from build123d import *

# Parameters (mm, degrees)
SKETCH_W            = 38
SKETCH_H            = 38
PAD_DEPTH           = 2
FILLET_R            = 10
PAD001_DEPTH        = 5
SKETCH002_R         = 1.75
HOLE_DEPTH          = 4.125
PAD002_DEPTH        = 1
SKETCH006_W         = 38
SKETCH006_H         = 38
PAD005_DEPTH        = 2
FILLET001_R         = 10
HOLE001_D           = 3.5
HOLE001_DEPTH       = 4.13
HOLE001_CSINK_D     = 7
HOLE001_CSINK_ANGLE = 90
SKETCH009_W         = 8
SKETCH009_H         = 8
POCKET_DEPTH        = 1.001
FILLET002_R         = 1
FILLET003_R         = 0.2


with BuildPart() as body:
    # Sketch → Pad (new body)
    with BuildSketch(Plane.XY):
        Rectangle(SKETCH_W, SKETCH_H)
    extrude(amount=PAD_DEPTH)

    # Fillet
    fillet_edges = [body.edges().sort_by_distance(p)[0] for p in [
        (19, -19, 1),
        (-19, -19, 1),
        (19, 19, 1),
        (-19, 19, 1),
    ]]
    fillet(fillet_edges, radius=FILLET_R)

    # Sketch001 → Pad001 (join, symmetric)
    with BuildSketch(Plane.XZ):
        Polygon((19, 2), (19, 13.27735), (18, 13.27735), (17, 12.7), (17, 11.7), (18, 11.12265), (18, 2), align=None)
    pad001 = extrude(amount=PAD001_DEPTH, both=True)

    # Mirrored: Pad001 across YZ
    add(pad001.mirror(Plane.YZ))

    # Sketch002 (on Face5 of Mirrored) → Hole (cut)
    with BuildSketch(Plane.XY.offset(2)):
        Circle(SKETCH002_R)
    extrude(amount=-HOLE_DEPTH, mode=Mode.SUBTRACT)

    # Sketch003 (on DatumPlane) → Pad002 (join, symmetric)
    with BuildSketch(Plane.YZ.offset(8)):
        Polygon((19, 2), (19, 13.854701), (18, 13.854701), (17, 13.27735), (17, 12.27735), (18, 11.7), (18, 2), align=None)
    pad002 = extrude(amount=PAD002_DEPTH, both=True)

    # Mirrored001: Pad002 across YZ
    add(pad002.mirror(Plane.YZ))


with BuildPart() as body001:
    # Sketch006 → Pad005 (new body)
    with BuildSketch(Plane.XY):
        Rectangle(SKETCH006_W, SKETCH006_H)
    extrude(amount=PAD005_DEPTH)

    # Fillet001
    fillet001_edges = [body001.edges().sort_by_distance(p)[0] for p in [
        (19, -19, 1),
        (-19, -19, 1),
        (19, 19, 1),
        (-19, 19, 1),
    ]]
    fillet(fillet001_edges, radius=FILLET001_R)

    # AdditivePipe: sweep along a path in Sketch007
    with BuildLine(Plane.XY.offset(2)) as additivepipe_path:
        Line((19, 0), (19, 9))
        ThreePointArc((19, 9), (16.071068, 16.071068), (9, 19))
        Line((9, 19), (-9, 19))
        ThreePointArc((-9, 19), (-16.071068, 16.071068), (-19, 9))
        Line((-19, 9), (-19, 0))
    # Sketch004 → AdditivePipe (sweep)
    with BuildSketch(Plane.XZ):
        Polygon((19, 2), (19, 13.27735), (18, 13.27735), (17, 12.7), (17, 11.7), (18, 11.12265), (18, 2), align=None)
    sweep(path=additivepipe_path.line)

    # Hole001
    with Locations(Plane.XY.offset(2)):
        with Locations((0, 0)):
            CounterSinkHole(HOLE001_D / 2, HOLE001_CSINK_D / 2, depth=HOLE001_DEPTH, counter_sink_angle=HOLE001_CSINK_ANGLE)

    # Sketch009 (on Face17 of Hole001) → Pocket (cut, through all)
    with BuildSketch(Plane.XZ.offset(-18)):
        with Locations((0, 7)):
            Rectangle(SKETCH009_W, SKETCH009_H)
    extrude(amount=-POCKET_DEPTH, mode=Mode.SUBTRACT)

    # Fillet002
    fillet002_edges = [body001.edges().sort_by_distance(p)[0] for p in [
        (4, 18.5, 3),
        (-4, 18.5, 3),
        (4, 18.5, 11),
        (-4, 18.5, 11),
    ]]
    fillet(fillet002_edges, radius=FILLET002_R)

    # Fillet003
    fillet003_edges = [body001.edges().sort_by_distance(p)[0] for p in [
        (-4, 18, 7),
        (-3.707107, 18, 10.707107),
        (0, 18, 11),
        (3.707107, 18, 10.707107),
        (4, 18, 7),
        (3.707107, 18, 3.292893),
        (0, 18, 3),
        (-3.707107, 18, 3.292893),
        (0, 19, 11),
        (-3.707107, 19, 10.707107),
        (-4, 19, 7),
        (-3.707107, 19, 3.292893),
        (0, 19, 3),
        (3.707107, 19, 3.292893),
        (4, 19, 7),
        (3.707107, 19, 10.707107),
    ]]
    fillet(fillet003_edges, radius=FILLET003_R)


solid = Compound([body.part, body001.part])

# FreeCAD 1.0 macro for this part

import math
import FreeCAD as App
import Part
import Sketcher
Q = App.Units.Quantity


def edges_at(feature, points):
    """Names of the edges that pass closest to the given points."""
    edges = feature.Shape.Edges
    near = lambda p: min(range(len(edges)), key=lambda i: edges[i].distToShape(Part.Vertex(*p))[0])
    return sorted({f"Edge{near(p) + 1}" for p in points})

doc = App.newDocument("Part")
body = doc.addObject("PartDesign::Body", "Body")

# Sketch on XY plane
sketch1 = body.newObject("Sketcher::SketchObject", "Sketch")
sketch1.AttachmentSupport = (doc.getObject("XY_Plane"), [""])
sketch1.MapMode = "FlatFace"
sketch1.addGeometry(Part.LineSegment(App.Vector(-19, 19, 0), App.Vector(-19, -19, 0)), False)
sketch1.addGeometry(Part.LineSegment(App.Vector(-19, -19, 0), App.Vector(19, -19, 0)), False)
sketch1.addGeometry(Part.LineSegment(App.Vector(19, -19, 0), App.Vector(19, 19, 0)), False)
sketch1.addGeometry(Part.LineSegment(App.Vector(19, 19, 0), App.Vector(-19, 19, 0)), False)
sketch1.addConstraint(Sketcher.Constraint("Coincident", 0, 2, 1, 1))
sketch1.addConstraint(Sketcher.Constraint("Coincident", 1, 2, 2, 1))
sketch1.addConstraint(Sketcher.Constraint("Coincident", 2, 2, 3, 1))
sketch1.addConstraint(Sketcher.Constraint("Coincident", 3, 2, 0, 1))
sketch1.addConstraint(Sketcher.Constraint("Vertical", 0))
sketch1.addConstraint(Sketcher.Constraint("Horizontal", 1))
sketch1.addConstraint(Sketcher.Constraint("Vertical", 2))
sketch1.addConstraint(Sketcher.Constraint("Horizontal", 3))
sketch1.addConstraint(Sketcher.Constraint("Symmetric", 0, 2, 2, 2, -1, 1))
sketch1.addConstraint(Sketcher.Constraint("Equal", 3, 0))
sketch1.addConstraint(Sketcher.Constraint("DistanceX", 1, 1, 1, 2, Q("38 mm")))
pad1 = body.newObject("PartDesign::Pad", "Pad")
pad1.Profile = sketch1
pad1.Length = 2
doc.recompute()

fillet = body.newObject("PartDesign::Fillet", "Fillet")
fillet.Base = (pad1, edges_at(pad1, [
    (19, -19, 1),
    (-19, -19, 1),
    (19, 19, 1),
    (-19, 19, 1),
]))
fillet.Radius = 10

# Sketch on XZ plane
sketch2 = body.newObject("Sketcher::SketchObject", "Sketch001")
sketch2.AttachmentSupport = (doc.getObject("XZ_Plane"), [""])
sketch2.MapMode = "FlatFace"
sketch2.addGeometry(Part.LineSegment(App.Vector(19, 2, 0), App.Vector(19, 13.27735, 0)), False)
sketch2.addGeometry(Part.LineSegment(App.Vector(19, 13.27735, 0), App.Vector(18, 13.27735, 0)), False)
sketch2.addGeometry(Part.LineSegment(App.Vector(18, 13.27735, 0), App.Vector(17, 12.7, 0)), False)
sketch2.addGeometry(Part.LineSegment(App.Vector(17, 12.7, 0), App.Vector(17, 11.7, 0)), False)
sketch2.addGeometry(Part.LineSegment(App.Vector(17, 11.7, 0), App.Vector(18, 11.12265, 0)), False)
sketch2.addGeometry(Part.LineSegment(App.Vector(18, 11.12265, 0), App.Vector(18, 2, 0)), False)
sketch2.addGeometry(Part.LineSegment(App.Vector(18, 2, 0), App.Vector(19, 2, 0)), False)
sketch2.addConstraint(Sketcher.Constraint("Coincident", 0, 2, 1, 1))
sketch2.addConstraint(Sketcher.Constraint("Coincident", 1, 2, 2, 1))
sketch2.addConstraint(Sketcher.Constraint("Coincident", 2, 2, 3, 1))
sketch2.addConstraint(Sketcher.Constraint("Coincident", 3, 2, 4, 1))
sketch2.addConstraint(Sketcher.Constraint("Coincident", 4, 2, 5, 1))
sketch2.addConstraint(Sketcher.Constraint("Coincident", 5, 2, 6, 1))
sketch2.addConstraint(Sketcher.Constraint("Coincident", 6, 2, 0, 1))
sketch2.addConstraint(Sketcher.Constraint("Vertical", 0))
sketch2.addConstraint(Sketcher.Constraint("Horizontal", 1))
sketch2.addConstraint(Sketcher.Constraint("Vertical", 3))
sketch2.addConstraint(Sketcher.Constraint("Vertical", 5))
sketch2.addConstraint(Sketcher.Constraint("Horizontal", 6))
sketch2.addConstraint(Sketcher.Constraint("Vertical", 1, 2, 4, 2))
sketch2.addConstraint(Sketcher.Constraint("Equal", 6, 3))
sketch2.addConstraint(Sketcher.Constraint("Equal", 2, 4))
sketch2.addConstraint(Sketcher.Constraint("DistanceX", 1, 2, 1, 1, Q("1 mm")))
sketch2.addConstraint(Sketcher.Constraint("Angle", 2, Q("-150.000012 deg")))
sketch2.addConstraint(Sketcher.Constraint("DistanceX", -1, 1, 0, 2, Q("19 mm")))
sketch2.addConstraint(Sketcher.Constraint("DistanceX", -1, 1, 2, 2, Q("17 mm")))
sketch2.addConstraint(Sketcher.Constraint("DistanceY", -1, 1, 5, 2, Q("2 mm")))
sketch2.addConstraint(Sketcher.Constraint("DistanceY", -1, 1, 2, 2, Q("12.7 mm")))
pad2 = body.newObject("PartDesign::Pad", "Pad001")
pad2.Profile = sketch2
pad2.Length = 10
pad2.Midplane = True
doc.recompute()

mirrored = body.newObject("PartDesign::Mirrored", "Mirrored")
mirrored.Originals = [pad2]
mirrored.MirrorPlane = (doc.getObject("YZ_Plane"), [""])
body.Tip = mirrored

# Sketch on XY plane
sketch3 = body.newObject("Sketcher::SketchObject", "Sketch002")
sketch3.AttachmentSupport = (doc.getObject("XY_Plane"), [""])
sketch3.MapMode = "FlatFace"
sketch3.AttachmentOffset = App.Placement(App.Vector(0, 0, 2), App.Rotation())
sketch3.addGeometry(Part.Circle(App.Vector(0, 0, 0), App.Vector(0, 0, 1), 1.75), False)
sketch3.addConstraint(Sketcher.Constraint("Coincident", 0, 3, -1, 1))
sketch3.addConstraint(Sketcher.Constraint("Diameter", 0, Q("3.5 mm")))
pocket1 = body.newObject("PartDesign::Pocket", "Pocket")
pocket1.Profile = sketch3
pocket1.Length = 4.125

# Sketch on YZ plane
sketch4 = body.newObject("Sketcher::SketchObject", "Sketch003")
sketch4.AttachmentSupport = (doc.getObject("YZ_Plane"), [""])
sketch4.MapMode = "FlatFace"
sketch4.AttachmentOffset = App.Placement(App.Vector(0, 0, 8), App.Rotation())
sketch4.addGeometry(Part.LineSegment(App.Vector(19, 2, 0), App.Vector(19, 13.854701, 0)), False)
sketch4.addGeometry(Part.LineSegment(App.Vector(19, 13.854701, 0), App.Vector(18, 13.854701, 0)), False)
sketch4.addGeometry(Part.LineSegment(App.Vector(18, 13.854701, 0), App.Vector(17, 13.27735, 0)), False)
sketch4.addGeometry(Part.LineSegment(App.Vector(17, 13.27735, 0), App.Vector(17, 12.27735, 0)), False)
sketch4.addGeometry(Part.LineSegment(App.Vector(17, 12.27735, 0), App.Vector(18, 11.7, 0)), False)
sketch4.addGeometry(Part.LineSegment(App.Vector(18, 11.7, 0), App.Vector(18, 2, 0)), False)
sketch4.addGeometry(Part.LineSegment(App.Vector(18, 2, 0), App.Vector(19, 2, 0)), False)
sketch4.addConstraint(Sketcher.Constraint("Coincident", 0, 2, 1, 1))
sketch4.addConstraint(Sketcher.Constraint("Coincident", 1, 2, 2, 1))
sketch4.addConstraint(Sketcher.Constraint("Coincident", 2, 2, 3, 1))
sketch4.addConstraint(Sketcher.Constraint("Coincident", 3, 2, 4, 1))
sketch4.addConstraint(Sketcher.Constraint("Coincident", 4, 2, 5, 1))
sketch4.addConstraint(Sketcher.Constraint("Coincident", 5, 2, 6, 1))
sketch4.addConstraint(Sketcher.Constraint("Coincident", 6, 2, 0, 1))
sketch4.addConstraint(Sketcher.Constraint("Vertical", 0))
sketch4.addConstraint(Sketcher.Constraint("Horizontal", 1))
sketch4.addConstraint(Sketcher.Constraint("Vertical", 3))
sketch4.addConstraint(Sketcher.Constraint("Vertical", 5))
sketch4.addConstraint(Sketcher.Constraint("Horizontal", 6))
sketch4.addConstraint(Sketcher.Constraint("Vertical", 1, 2, 4, 2))
sketch4.addConstraint(Sketcher.Constraint("Equal", 6, 3))
sketch4.addConstraint(Sketcher.Constraint("Equal", 2, 4))
sketch4.addConstraint(Sketcher.Constraint("DistanceX", 1, 2, 1, 1, Q("1 mm")))
sketch4.addConstraint(Sketcher.Constraint("Angle", 4, Q("-29.999988 deg")))
sketch4.addConstraint(Sketcher.Constraint("DistanceY", 5, 2, 5, 1, Q("9.7 mm")))
sketch4.addConstraint(Sketcher.Constraint("DistanceX", -1, 1, 0, 2, Q("19 mm")))
sketch4.addConstraint(Sketcher.Constraint("DistanceX", -1, 1, 2, 2, Q("17 mm")))
sketch4.addConstraint(Sketcher.Constraint("DistanceY", -1, 1, 5, 2, Q("2 mm")))
pad3 = body.newObject("PartDesign::Pad", "Pad002")
pad3.Profile = sketch4
pad3.Length = 2
pad3.Midplane = True
doc.recompute()

mirrored2 = body.newObject("PartDesign::Mirrored", "Mirrored001")
mirrored2.Originals = [pad3]
mirrored2.MirrorPlane = (doc.getObject("YZ_Plane"), [""])
body.Tip = mirrored2
body2 = doc.addObject("PartDesign::Body", "Body001")

# Sketch on XY plane
sketch5 = body2.newObject("Sketcher::SketchObject", "Sketch004")
sketch5.AttachmentSupport = (doc.getObject("XY_Plane001"), [""])
sketch5.MapMode = "FlatFace"
sketch5.addGeometry(Part.LineSegment(App.Vector(-19, 19, 0), App.Vector(-19, -19, 0)), False)
sketch5.addGeometry(Part.LineSegment(App.Vector(-19, -19, 0), App.Vector(19, -19, 0)), False)
sketch5.addGeometry(Part.LineSegment(App.Vector(19, -19, 0), App.Vector(19, 19, 0)), False)
sketch5.addGeometry(Part.LineSegment(App.Vector(19, 19, 0), App.Vector(-19, 19, 0)), False)
sketch5.addConstraint(Sketcher.Constraint("Coincident", 0, 2, 1, 1))
sketch5.addConstraint(Sketcher.Constraint("Coincident", 1, 2, 2, 1))
sketch5.addConstraint(Sketcher.Constraint("Coincident", 2, 2, 3, 1))
sketch5.addConstraint(Sketcher.Constraint("Coincident", 3, 2, 0, 1))
sketch5.addConstraint(Sketcher.Constraint("Vertical", 0))
sketch5.addConstraint(Sketcher.Constraint("Horizontal", 1))
sketch5.addConstraint(Sketcher.Constraint("Vertical", 2))
sketch5.addConstraint(Sketcher.Constraint("Horizontal", 3))
sketch5.addConstraint(Sketcher.Constraint("Symmetric", 0, 2, 2, 2, -1, 1))
sketch5.addConstraint(Sketcher.Constraint("Equal", 3, 0))
sketch5.addConstraint(Sketcher.Constraint("DistanceX", 1, 1, 1, 2, Q("38 mm")))
pad4 = body2.newObject("PartDesign::Pad", "Pad003")
pad4.Profile = sketch5
pad4.Length = 2
doc.recompute()

fillet2 = body2.newObject("PartDesign::Fillet", "Fillet001")
fillet2.Base = (pad4, edges_at(pad4, [
    (19, -19, 1),
    (-19, -19, 1),
    (19, 19, 1),
    (-19, 19, 1),
]))
fillet2.Radius = 10

# Sketch on XZ plane
sketch6 = body2.newObject("Sketcher::SketchObject", "Sketch005")
sketch6.AttachmentSupport = (doc.getObject("XZ_Plane001"), [""])
sketch6.MapMode = "FlatFace"
sketch6.addGeometry(Part.LineSegment(App.Vector(19, 2, 0), App.Vector(19, 13.27735, 0)), False)
sketch6.addGeometry(Part.LineSegment(App.Vector(19, 13.27735, 0), App.Vector(18, 13.27735, 0)), False)
sketch6.addGeometry(Part.LineSegment(App.Vector(18, 13.27735, 0), App.Vector(17, 12.7, 0)), False)
sketch6.addGeometry(Part.LineSegment(App.Vector(17, 12.7, 0), App.Vector(17, 11.7, 0)), False)
sketch6.addGeometry(Part.LineSegment(App.Vector(17, 11.7, 0), App.Vector(18, 11.12265, 0)), False)
sketch6.addGeometry(Part.LineSegment(App.Vector(18, 11.12265, 0), App.Vector(18, 2, 0)), False)
sketch6.addGeometry(Part.LineSegment(App.Vector(18, 2, 0), App.Vector(19, 2, 0)), False)
sketch6.addConstraint(Sketcher.Constraint("Coincident", 0, 2, 1, 1))
sketch6.addConstraint(Sketcher.Constraint("Coincident", 1, 2, 2, 1))
sketch6.addConstraint(Sketcher.Constraint("Coincident", 2, 2, 3, 1))
sketch6.addConstraint(Sketcher.Constraint("Coincident", 3, 2, 4, 1))
sketch6.addConstraint(Sketcher.Constraint("Coincident", 4, 2, 5, 1))
sketch6.addConstraint(Sketcher.Constraint("Coincident", 5, 2, 6, 1))
sketch6.addConstraint(Sketcher.Constraint("Coincident", 6, 2, 0, 1))
sketch6.addConstraint(Sketcher.Constraint("Vertical", 0))
sketch6.addConstraint(Sketcher.Constraint("Horizontal", 1))
sketch6.addConstraint(Sketcher.Constraint("Vertical", 3))
sketch6.addConstraint(Sketcher.Constraint("Vertical", 5))
sketch6.addConstraint(Sketcher.Constraint("Horizontal", 6))
sketch6.addConstraint(Sketcher.Constraint("Vertical", 1, 2, 4, 2))
sketch6.addConstraint(Sketcher.Constraint("Equal", 6, 3))
sketch6.addConstraint(Sketcher.Constraint("Equal", 2, 4))
sketch6.addConstraint(Sketcher.Constraint("DistanceX", 1, 2, 1, 1, Q("1 mm")))
sketch6.addConstraint(Sketcher.Constraint("Angle", 2, Q("-150.000012 deg")))
sketch6.addConstraint(Sketcher.Constraint("DistanceX", -1, 1, 0, 2, Q("19 mm")))
sketch6.addConstraint(Sketcher.Constraint("DistanceX", -1, 1, 2, 2, Q("17 mm")))
sketch6.addConstraint(Sketcher.Constraint("DistanceY", -1, 1, 5, 2, Q("2 mm")))
sketch6.addConstraint(Sketcher.Constraint("DistanceY", -1, 1, 2, 2, Q("12.7 mm")))

# Sketch on XY plane
sketch7 = body2.newObject("Sketcher::SketchObject", "Sketch006")
sketch7.AttachmentSupport = (doc.getObject("XY_Plane001"), [""])
sketch7.MapMode = "FlatFace"
sketch7.AttachmentOffset = App.Placement(App.Vector(0, 0, 2), App.Rotation())
sketch7.addGeometry(Part.LineSegment(App.Vector(19, 0, 0), App.Vector(19, 9, 0)), False)
sketch7.addGeometry(Part.ArcOfCircle(Part.Circle(App.Vector(9.000001, 9.000001, 0), App.Vector(0, 0, 1), 9.999999), math.radians(-0.000004), math.radians(90.000004)), False)
sketch7.addGeometry(Part.LineSegment(App.Vector(9, 19, 0), App.Vector(-9, 19, 0)), False)
sketch7.addGeometry(Part.ArcOfCircle(Part.Circle(App.Vector(-9.000001, 9.000001, 0), App.Vector(0, 0, 1), 9.999999), math.radians(89.999996), math.radians(180.000004)), False)
sketch7.addGeometry(Part.LineSegment(App.Vector(-19, 9, 0), App.Vector(-19, 0, 0)), False)
sketch7.addConstraint(Sketcher.Constraint("Tangent", 0, 2, 1, 1))
sketch7.addConstraint(Sketcher.Constraint("Tangent", 1, 2, 2, 1))
sketch7.addConstraint(Sketcher.Constraint("Tangent", 2, 2, 3, 1))
sketch7.addConstraint(Sketcher.Constraint("Tangent", 3, 2, 4, 1))
sketch7.addConstraint(Sketcher.Constraint("Vertical", 0))
sketch7.addConstraint(Sketcher.Constraint("Horizontal", 2))
sketch7.addConstraint(Sketcher.Constraint("Vertical", 4))
sketch7.addConstraint(Sketcher.Constraint("Equal", 1, 3))
sketch7.addConstraint(Sketcher.Constraint("Symmetric", 0, 1, 4, 2, -1, 1))
sketch7.addConstraint(Sketcher.Constraint("PointOnObject", 0, 1, -1))
sketch7.addConstraint(Sketcher.Constraint("Radius", 1, Q("9.999999 mm")))
sketch7.addConstraint(Sketcher.Constraint("DistanceX", 2, 2, 2, 1, Q("18 mm")))
sketch7.addConstraint(Sketcher.Constraint("DistanceY", 0, 1, 0, 2, Q("9 mm")))
doc.recompute()

additivepipe = body2.newObject("PartDesign::AdditivePipe", "AdditivePipe")
additivepipe.Profile = sketch6
additivepipe.Spine = (sketch7, ["Edge1", "Edge2", "Edge3", "Edge4", "Edge5"])

# Sketch on XY plane
sketch8 = body2.newObject("Sketcher::SketchObject", "Sketch007")
sketch8.AttachmentSupport = (doc.getObject("XY_Plane001"), [""])
sketch8.MapMode = "FlatFace"
sketch8.AttachmentOffset = App.Placement(App.Vector(0, 0, 2), App.Rotation())
sketch8.addGeometry(Part.Circle(App.Vector(0, 0, 0), App.Vector(0, 0, 1), 1.75), False)
sketch8.addConstraint(Sketcher.Constraint("Coincident", 0, 3, -1, 1))
sketch8.addConstraint(Sketcher.Constraint("Diameter", 0, Q("3.5 mm")))
doc.recompute()
hole = body2.newObject("PartDesign::Hole", "Hole")
hole.Profile = sketch8
hole.ThreadType = "None"
hole.Diameter = 3.5
hole.DepthType = "Dimension"
hole.Depth = 4.13
hole.DrillPoint = "Flat"
hole.HoleCutType = "Countersink"
hole.HoleCutDiameter = 7
hole.HoleCutCountersinkAngle = 90

# Sketch on XZ plane
sketch9 = body2.newObject("Sketcher::SketchObject", "Sketch008")
sketch9.AttachmentSupport = (doc.getObject("XZ_Plane001"), [""])
sketch9.MapMode = "FlatFace"
sketch9.AttachmentOffset = App.Placement(App.Vector(0, 0, -18), App.Rotation())
sketch9.addGeometry(Part.LineSegment(App.Vector(-4, 11, 0), App.Vector(-4, 3, 0)), False)
sketch9.addGeometry(Part.LineSegment(App.Vector(-4, 3, 0), App.Vector(4, 3, 0)), False)
sketch9.addGeometry(Part.LineSegment(App.Vector(4, 3, 0), App.Vector(4, 11, 0)), False)
sketch9.addGeometry(Part.LineSegment(App.Vector(4, 11, 0), App.Vector(-4, 11, 0)), False)
sketch9.addConstraint(Sketcher.Constraint("Coincident", 0, 2, 1, 1))
sketch9.addConstraint(Sketcher.Constraint("Coincident", 1, 2, 2, 1))
sketch9.addConstraint(Sketcher.Constraint("Coincident", 2, 2, 3, 1))
sketch9.addConstraint(Sketcher.Constraint("Coincident", 3, 2, 0, 1))
sketch9.addConstraint(Sketcher.Constraint("Vertical", 0))
sketch9.addConstraint(Sketcher.Constraint("Horizontal", 1))
sketch9.addConstraint(Sketcher.Constraint("Vertical", 2))
sketch9.addConstraint(Sketcher.Constraint("Horizontal", 3))
sketch9.addConstraint(Sketcher.Constraint("Equal", 3, 0))
sketch9.addConstraint(Sketcher.Constraint("DistanceX", 1, 1, 1, 2, Q("8 mm")))
sketch9.addConstraint(Sketcher.Constraint("DistanceX", 0, 2, -1, 1, Q("4 mm")))
sketch9.addConstraint(Sketcher.Constraint("DistanceY", -1, 1, 0, 2, Q("3 mm")))
pocket2 = body2.newObject("PartDesign::Pocket", "Pocket001")
pocket2.Profile = sketch9
pocket2.Type = "ThroughAll"
doc.recompute()

fillet3 = body2.newObject("PartDesign::Fillet", "Fillet002")
fillet3.Base = (pocket2, edges_at(pocket2, [
    (4, 18.5, 3),
    (-4, 18.5, 3),
    (4, 18.5, 11),
    (-4, 18.5, 11),
]))
fillet3.Radius = 1
doc.recompute()

fillet4 = body2.newObject("PartDesign::Fillet", "Fillet003")
fillet4.Base = (fillet3, edges_at(fillet3, [
    (-4, 18, 7),
    (-3.707, 18, 10.707),
    (0, 18, 11),
    (3.707, 18, 10.707),
    (4, 18, 7),
    (3.707, 18, 3.293),
    (0, 18, 3),
    (-3.707, 18, 3.293),
    (0, 19, 11),
    (-3.707, 19, 10.707),
    (-4, 19, 7),
    (-3.707, 19, 3.293),
    (0, 19, 3),
    (3.707, 19, 3.293),
    (4, 19, 7),
    (3.707, 19, 10.707),
]))
fillet4.Radius = 0.2

doc.recompute()
